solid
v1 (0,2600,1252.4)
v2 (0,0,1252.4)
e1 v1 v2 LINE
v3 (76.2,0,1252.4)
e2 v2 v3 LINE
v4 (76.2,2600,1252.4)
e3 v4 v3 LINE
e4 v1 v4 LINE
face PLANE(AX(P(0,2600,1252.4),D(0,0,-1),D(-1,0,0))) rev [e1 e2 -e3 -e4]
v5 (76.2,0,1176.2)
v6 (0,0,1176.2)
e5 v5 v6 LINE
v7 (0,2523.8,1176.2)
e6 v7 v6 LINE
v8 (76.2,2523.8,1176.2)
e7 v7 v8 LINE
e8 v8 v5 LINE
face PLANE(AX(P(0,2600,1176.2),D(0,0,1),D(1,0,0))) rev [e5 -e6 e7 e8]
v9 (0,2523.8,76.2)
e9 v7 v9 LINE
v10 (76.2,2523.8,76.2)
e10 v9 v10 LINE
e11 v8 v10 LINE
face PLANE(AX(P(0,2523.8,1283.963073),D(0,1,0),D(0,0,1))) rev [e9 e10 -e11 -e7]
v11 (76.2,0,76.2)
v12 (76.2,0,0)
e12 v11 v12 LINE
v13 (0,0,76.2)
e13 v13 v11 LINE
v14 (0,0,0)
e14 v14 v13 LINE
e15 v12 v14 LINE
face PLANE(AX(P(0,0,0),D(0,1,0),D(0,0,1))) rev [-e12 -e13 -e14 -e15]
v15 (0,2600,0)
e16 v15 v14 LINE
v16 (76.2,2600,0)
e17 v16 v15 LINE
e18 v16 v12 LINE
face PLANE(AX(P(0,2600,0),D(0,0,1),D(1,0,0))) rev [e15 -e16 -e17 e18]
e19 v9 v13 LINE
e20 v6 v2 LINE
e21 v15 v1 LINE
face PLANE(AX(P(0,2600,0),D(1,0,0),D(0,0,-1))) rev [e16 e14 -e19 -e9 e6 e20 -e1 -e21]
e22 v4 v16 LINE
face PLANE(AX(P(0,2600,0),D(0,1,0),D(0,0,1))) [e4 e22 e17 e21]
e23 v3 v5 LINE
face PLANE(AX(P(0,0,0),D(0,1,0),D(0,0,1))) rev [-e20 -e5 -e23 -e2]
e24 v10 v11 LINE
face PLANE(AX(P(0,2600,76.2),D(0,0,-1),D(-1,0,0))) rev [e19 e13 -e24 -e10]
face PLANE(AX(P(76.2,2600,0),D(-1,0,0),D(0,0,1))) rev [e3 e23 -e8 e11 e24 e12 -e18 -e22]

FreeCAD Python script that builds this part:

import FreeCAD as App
import Part
import Sketcher
Q = App.Units.Quantity


def add_polygon(sketch, points):
    """Adds a closed chain of lines whose ends are joined by coincident constraints."""
    first, n = sketch.GeometryCount, len(points)
    for a, b in zip(points, points[1:] + points[:1]):
        sketch.addGeometry(Part.LineSegment(App.Vector(*a, 0), App.Vector(*b, 0)), False)
    for i in range(n):
        sketch.addConstraint(Sketcher.Constraint("Coincident", first + i, 2, first + (i + 1) % n, 1))

doc = App.newDocument("Part")
body = doc.addObject("PartDesign::Body", "Body")

# Sketch on XZ plane
sketch1 = body.newObject("Sketcher::SketchObject", "Sketch")
sketch1.AttachmentSupport = (doc.getObject("XZ_Plane"), [""])
sketch1.MapMode = "FlatFace"
add_polygon(sketch1, [(0, 0), (0, 76), (76, 76), (76, 0)])  # lines 0-3
sketch1.addConstraint(Sketcher.Constraint("Vertical", 0))
sketch1.addConstraint(Sketcher.Constraint("Horizontal", 1))
sketch1.addConstraint(Sketcher.Constraint("Vertical", 2))
sketch1.addConstraint(Sketcher.Constraint("Horizontal", 3))
sketch1.addConstraint(Sketcher.Constraint("Coincident", 3, 2, -1, 1))
sketch1.addConstraint(Sketcher.Constraint("Equal", 3, 0))
sketch1.addConstraint(Sketcher.Constraint("DistanceX", 1, 1, 1, 2, Q("76.2 mm")))
pad1 = body.newObject("PartDesign::Pad", "Pad")
pad1.Profile = sketch1
pad1.Length = 2600
pad1.Reversed = True
body2 = doc.addObject("PartDesign::Body", "Body001")

# Sketch on XZ plane
sketch2 = body2.newObject("Sketcher::SketchObject", "Sketch001")
sketch2.AttachmentSupport = (doc.getObject("XZ_Plane001"), [""])
sketch2.MapMode = "FlatFace"
add_polygon(sketch2, [(1481, 0), (1481, 76), (1557, 76), (1557, 0)])  # lines 0-3
sketch2.addConstraint(Sketcher.Constraint("Vertical", 0))
sketch2.addConstraint(Sketcher.Constraint("Horizontal", 1))
sketch2.addConstraint(Sketcher.Constraint("Vertical", 2))
sketch2.addConstraint(Sketcher.Constraint("Horizontal", 3))
sketch2.addConstraint(Sketcher.Constraint("PointOnObject", 2, 2, -1))
sketch2.addConstraint(Sketcher.Constraint("Equal", 3, 0))
sketch2.addConstraint(Sketcher.Constraint("DistanceX", 1, 1, 1, 2, Q("76.2 mm")))
sketch2.addConstraint(Sketcher.Constraint("DistanceX", -1, 1, 0, 2, Q("1481.2 mm")))
pad2 = body2.newObject("PartDesign::Pad", "Pad001")
pad2.Profile = sketch2
pad2.Length = 2600
pad2.Reversed = True
body3 = doc.addObject("PartDesign::Body", "Body002")

# Sketch on XZ plane
sketch3 = body3.newObject("Sketcher::SketchObject", "Sketch002")
sketch3.AttachmentSupport = (doc.getObject("XZ_Plane002"), [""])
sketch3.MapMode = "FlatFace"
add_polygon(sketch3, [(2962, 0), (2962, 76), (3039, 76), (3039, 0)])  # lines 0-3
sketch3.addConstraint(Sketcher.Constraint("Vertical", 0))
sketch3.addConstraint(Sketcher.Constraint("Horizontal", 1))
sketch3.addConstraint(Sketcher.Constraint("Vertical", 2))
sketch3.addConstraint(Sketcher.Constraint("Horizontal", 3))
sketch3.addConstraint(Sketcher.Constraint("PointOnObject", 2, 2, -1))
sketch3.addConstraint(Sketcher.Constraint("Equal", 3, 0))
sketch3.addConstraint(Sketcher.Constraint("DistanceX", 1, 1, 1, 2, Q("76.2 mm")))
sketch3.addConstraint(Sketcher.Constraint("DistanceX", -1, 1, 0, 2, Q("2962.4 mm")))
pad3 = body3.newObject("PartDesign::Pad", "Pad002")
pad3.Profile = sketch3
pad3.Length = 2600
pad3.Reversed = True
body4 = doc.addObject("PartDesign::Body", "Body003")

# Sketch on XZ plane
sketch4 = body4.newObject("Sketcher::SketchObject", "Sketch003")
sketch4.AttachmentSupport = (doc.getObject("XZ_Plane003"), [""])
sketch4.MapMode = "FlatFace"
add_polygon(sketch4, [(4444, 0), (4444, 76), (4520, 76), (4520, 0)])  # lines 0-3
sketch4.addConstraint(Sketcher.Constraint("Vertical", 0))
sketch4.addConstraint(Sketcher.Constraint("Horizontal", 1))
sketch4.addConstraint(Sketcher.Constraint("Vertical", 2))
sketch4.addConstraint(Sketcher.Constraint("Horizontal", 3))
sketch4.addConstraint(Sketcher.Constraint("PointOnObject", 2, 2, -1))
sketch4.addConstraint(Sketcher.Constraint("Equal", 3, 0))
sketch4.addConstraint(Sketcher.Constraint("DistanceX", 1, 1, 1, 2, Q("76.2 mm")))
sketch4.addConstraint(Sketcher.Constraint("DistanceX", -1, 1, 0, 2, Q("4443.6 mm")))
pad4 = body4.newObject("PartDesign::Pad", "Pad003")
pad4.Profile = sketch4
pad4.Length = 2600
pad4.Reversed = True
body5 = doc.addObject("PartDesign::Body", "Body004")

# Sketch on XZ plane
sketch5 = body5.newObject("Sketcher::SketchObject", "Sketch004")
sketch5.AttachmentSupport = (doc.getObject("XZ_Plane004"), [""])
sketch5.MapMode = "FlatFace"
add_polygon(sketch5, [(5925, 0), (5925, 76), (6001, 76), (6001, 0)])  # lines 0-3
sketch5.addConstraint(Sketcher.Constraint("Vertical", 0))
sketch5.addConstraint(Sketcher.Constraint("Horizontal", 1))
sketch5.addConstraint(Sketcher.Constraint("Vertical", 2))
sketch5.addConstraint(Sketcher.Constraint("Horizontal", 3))
sketch5.addConstraint(Sketcher.Constraint("PointOnObject", 2, 2, -1))
sketch5.addConstraint(Sketcher.Constraint("Equal", 3, 0))
sketch5.addConstraint(Sketcher.Constraint("DistanceX", 1, 1, 1, 2, Q("76.2 mm")))
sketch5.addConstraint(Sketcher.Constraint("DistanceX", -1, 1, 1, 2, Q("6001 mm")))
pad5 = body5.newObject("PartDesign::Pad", "Pad004")
pad5.Profile = sketch5
pad5.Length = 2600
pad5.Reversed = True
body6 = doc.addObject("PartDesign::Body", "Body005")

# Sketch on XZ plane
sketch6 = body6.newObject("Sketcher::SketchObject", "Sketch005")
sketch6.AttachmentSupport = (doc.getObject("XZ_Plane005"), [""])
sketch6.MapMode = "FlatFace"
add_polygon(sketch6, [(5925, 1176), (5925, 1252), (6001, 1252), (6001, 1176)])  # lines 0-3
sketch6.addConstraint(Sketcher.Constraint("Vertical", 0))
sketch6.addConstraint(Sketcher.Constraint("Horizontal", 1))
sketch6.addConstraint(Sketcher.Constraint("Vertical", 2))
sketch6.addConstraint(Sketcher.Constraint("Horizontal", 3))
sketch6.addConstraint(Sketcher.Constraint("Equal", 3, 0))
sketch6.addConstraint(Sketcher.Constraint("DistanceX", 1, 1, 1, 2, Q("76.2 mm")))
sketch6.addConstraint(Sketcher.Constraint("DistanceX", -1, 1, 1, 2, Q("6001 mm")))
sketch6.addConstraint(Sketcher.Constraint("DistanceY", -1, 1, 0, 2, Q("1252.4 mm")))
pad6 = body6.newObject("PartDesign::Pad", "Pad005")
pad6.Profile = sketch6
pad6.Length = 2600
pad6.Reversed = True
body7 = doc.addObject("PartDesign::Body", "Body006")

# Sketch on XZ plane
sketch7 = body7.newObject("Sketcher::SketchObject", "Sketch006")
sketch7.AttachmentSupport = (doc.getObject("XZ_Plane006"), [""])
sketch7.MapMode = "FlatFace"
add_polygon(sketch7, [(4444, 1176), (4444, 1252), (4520, 1252), (4520, 1176)])  # lines 0-3
sketch7.addConstraint(Sketcher.Constraint("Vertical", 0))
sketch7.addConstraint(Sketcher.Constraint("Horizontal", 1))
sketch7.addConstraint(Sketcher.Constraint("Vertical", 2))
sketch7.addConstraint(Sketcher.Constraint("Horizontal", 3))
sketch7.addConstraint(Sketcher.Constraint("Equal", 3, 0))
sketch7.addConstraint(Sketcher.Constraint("DistanceX", 1, 1, 1, 2, Q("76.2 mm")))
sketch7.addConstraint(Sketcher.Constraint("DistanceX", -1, 1, 0, 2, Q("4443.6 mm")))
sketch7.addConstraint(Sketcher.Constraint("DistanceY", -1, 1, 0, 2, Q("1252.4 mm")))
pad7 = body7.newObject("PartDesign::Pad", "Pad006")
pad7.Profile = sketch7
pad7.Length = 2600
pad7.Reversed = True
body8 = doc.addObject("PartDesign::Body", "Body007")

# Sketch on XZ plane
sketch8 = body8.newObject("Sketcher::SketchObject", "Sketch007")
sketch8.AttachmentSupport = (doc.getObject("XZ_Plane007"), [""])
sketch8.MapMode = "FlatFace"
add_polygon(sketch8, [(2962, 1176), (2962, 1252), (3039, 1252), (3039, 1176)])  # lines 0-3
sketch8.addConstraint(Sketcher.Constraint("Vertical", 0))
sketch8.addConstraint(Sketcher.Constraint("Horizontal", 1))
sketch8.addConstraint(Sketcher.Constraint("Vertical", 2))
sketch8.addConstraint(Sketcher.Constraint("Horizontal", 3))
sketch8.addConstraint(Sketcher.Constraint("Equal", 3, 0))
sketch8.addConstraint(Sketcher.Constraint("DistanceX", 1, 1, 1, 2, Q("76.2 mm")))
sketch8.addConstraint(Sketcher.Constraint("DistanceX", -1, 1, 0, 2, Q("2962.4 mm")))
sketch8.addConstraint(Sketcher.Constraint("DistanceY", -1, 1, 0, 2, Q("1252.4 mm")))
pad8 = body8.newObject("PartDesign::Pad", "Pad007")
pad8.Profile = sketch8
pad8.Length = 2600
pad8.Reversed = True
body9 = doc.addObject("PartDesign::Body", "Body008")

# Sketch on XZ plane
sketch9 = body9.newObject("Sketcher::SketchObject", "Sketch008")
sketch9.AttachmentSupport = (doc.getObject("XZ_Plane008"), [""])
sketch9.MapMode = "FlatFace"
add_polygon(sketch9, [(1481, 1176), (1481, 1252), (1557, 1252), (1557, 1176)])  # lines 0-3
sketch9.addConstraint(Sketcher.Constraint("Vertical", 0))
sketch9.addConstraint(Sketcher.Constraint("Horizontal", 1))
sketch9.addConstraint(Sketcher.Constraint("Vertical", 2))
sketch9.addConstraint(Sketcher.Constraint("Horizontal", 3))
sketch9.addConstraint(Sketcher.Constraint("Equal", 3, 0))
sketch9.addConstraint(Sketcher.Constraint("DistanceX", 1, 1, 1, 2, Q("76.2 mm")))
sketch9.addConstraint(Sketcher.Constraint("DistanceX", -1, 1, 0, 2, Q("1481.2 mm")))
sketch9.addConstraint(Sketcher.Constraint("DistanceY", -1, 1, 0, 2, Q("1252.4 mm")))
pad9 = body9.newObject("PartDesign::Pad", "Pad008")
pad9.Profile = sketch9
pad9.Length = 2600
pad9.Reversed = True
body10 = doc.addObject("PartDesign::Body", "Body009")

# Sketch on XZ plane
sketch10 = body10.newObject("Sketcher::SketchObject", "Sketch009")
sketch10.AttachmentSupport = (doc.getObject("XZ_Plane009"), [""])
sketch10.MapMode = "FlatFace"
add_polygon(sketch10, [(0, 1176), (0, 1252), (76, 1252), (76, 1176)])  # lines 0-3
sketch10.addConstraint(Sketcher.Constraint("Vertical", 0))
sketch10.addConstraint(Sketcher.Constraint("Horizontal", 1))
sketch10.addConstraint(Sketcher.Constraint("Vertical", 2))
sketch10.addConstraint(Sketcher.Constraint("Horizontal", 3))
sketch10.addConstraint(Sketcher.Constraint("PointOnObject", 0, 2, -2))
sketch10.addConstraint(Sketcher.Constraint("Equal", 3, 0))
sketch10.addConstraint(Sketcher.Constraint("DistanceX", 1, 1, 1, 2, Q("76.2 mm")))
sketch10.addConstraint(Sketcher.Constraint("DistanceY", -1, 1, 0, 2, Q("1252.4 mm")))
pad10 = body10.newObject("PartDesign::Pad", "Pad009")
pad10.Profile = sketch10
pad10.Length = 2600
pad10.Reversed = True
body.AllowCompound = True
doc.recompute()

boolean = body.newObject("PartDesign::Boolean", "Boolean")
boolean.Type = "Fuse"
boolean.addObjects([body2])
doc.recompute()

boolean2 = body.newObject("PartDesign::Boolean", "Boolean001")
boolean2.Type = "Fuse"
boolean2.addObjects([body3])
doc.recompute()

boolean3 = body.newObject("PartDesign::Boolean", "Boolean002")
boolean3.Type = "Fuse"
boolean3.addObjects([body4])
doc.recompute()

boolean4 = body.newObject("PartDesign::Boolean", "Boolean003")
boolean4.Type = "Fuse"
boolean4.addObjects([body5])
doc.recompute()

boolean5 = body.newObject("PartDesign::Boolean", "Boolean004")
boolean5.Type = "Fuse"
boolean5.addObjects([body6])
doc.recompute()

boolean6 = body.newObject("PartDesign::Boolean", "Boolean005")
boolean6.Type = "Fuse"
boolean6.addObjects([body7])
doc.recompute()

boolean7 = body.newObject("PartDesign::Boolean", "Boolean006")
boolean7.Type = "Fuse"
boolean7.addObjects([body8])
doc.recompute()

boolean8 = body.newObject("PartDesign::Boolean", "Boolean007")
boolean8.Type = "Fuse"
boolean8.addObjects([body9])
doc.recompute()

boolean9 = body.newObject("PartDesign::Boolean", "Boolean008")
boolean9.Type = "Fuse"
boolean9.addObjects([body10])

# Sketch on XY plane
sketch11 = body.newObject("Sketcher::SketchObject", "Sketch010")
sketch11.AttachmentSupport = (doc.getObject("XY_Plane"), [""])
sketch11.MapMode = "FlatFace"
sketch11.AttachmentOffset = App.Placement(App.Vector(0, 0, 76.2), App.Rotation())
add_polygon(sketch11, [(0, 2600), (0, 2524), (76, 2524), (76, 2600)])  # lines 0-3
add_polygon(sketch11, [(1481, 2600), (1481, 2524), (1557, 2524), (1557, 2600)])  # lines 4-7
add_polygon(sketch11, [(2962, 2600), (2962, 2524), (3039, 2524), (3039, 2600)])  # lines 8-11
add_polygon(sketch11, [(4444, 2600), (4444, 2524), (4520, 2524), (4520, 2600)])  # lines 12-15
add_polygon(sketch11, [(5925, 2600), (5925, 2524), (6001, 2524), (6001, 2600)])  # lines 16-19
sketch11.addConstraint(Sketcher.Constraint("Vertical", 0))
sketch11.addConstraint(Sketcher.Constraint("Horizontal", 1))
sketch11.addConstraint(Sketcher.Constraint("Vertical", 2))
sketch11.addConstraint(Sketcher.Constraint("Horizontal", 3))
sketch11.addConstraint(Sketcher.Constraint("Vertical", 4))
sketch11.addConstraint(Sketcher.Constraint("Horizontal", 5))
sketch11.addConstraint(Sketcher.Constraint("Vertical", 6))
sketch11.addConstraint(Sketcher.Constraint("Horizontal", 7))
sketch11.addConstraint(Sketcher.Constraint("Vertical", 8))
sketch11.addConstraint(Sketcher.Constraint("Horizontal", 9))
sketch11.addConstraint(Sketcher.Constraint("Vertical", 10))
sketch11.addConstraint(Sketcher.Constraint("Horizontal", 11))
sketch11.addConstraint(Sketcher.Constraint("Vertical", 12))
sketch11.addConstraint(Sketcher.Constraint("Horizontal", 13))
sketch11.addConstraint(Sketcher.Constraint("Vertical", 14))
sketch11.addConstraint(Sketcher.Constraint("Horizontal", 15))
sketch11.addConstraint(Sketcher.Constraint("Vertical", 16))
sketch11.addConstraint(Sketcher.Constraint("Horizontal", 17))
sketch11.addConstraint(Sketcher.Constraint("Vertical", 18))
sketch11.addConstraint(Sketcher.Constraint("Horizontal", 19))
sketch11.addConstraint(Sketcher.Constraint("PointOnObject", 0, 2, -2))
sketch11.addConstraint(Sketcher.Constraint("Horizontal", 1, 2, 4, 2))
sketch11.addConstraint(Sketcher.Constraint("Horizontal", 3, 2, 6, 2))
sketch11.addConstraint(Sketcher.Constraint("Horizontal", 5, 2, 8, 2))
sketch11.addConstraint(Sketcher.Constraint("Horizontal", 7, 2, 10, 2))
sketch11.addConstraint(Sketcher.Constraint("Horizontal", 9, 2, 12, 2))
sketch11.addConstraint(Sketcher.Constraint("Horizontal", 11, 2, 14, 2))
sketch11.addConstraint(Sketcher.Constraint("Horizontal", 13, 2, 16, 2))
sketch11.addConstraint(Sketcher.Constraint("Horizontal", 15, 2, 18, 2))
sketch11.addConstraint(Sketcher.Constraint("Equal", 3, 5))
sketch11.addConstraint(Sketcher.Constraint("Equal", 7, 9))
sketch11.addConstraint(Sketcher.Constraint("Equal", 11, 13))
sketch11.addConstraint(Sketcher.Constraint("Equal", 15, 17))
sketch11.addConstraint(Sketcher.Constraint("Equal", 19, 0))
sketch11.addConstraint(Sketcher.Constraint("DistanceX", 1, 1, 1, 2, Q("76.2 mm")))
sketch11.addConstraint(Sketcher.Constraint("DistanceY", -1, 1, 2, 2, Q("2600 mm")))
sketch11.addConstraint(Sketcher.Constraint("DistanceX", -1, 1, 17, 2, Q("6001 mm")))
sketch11.addConstraint(Sketcher.Constraint("DistanceX", 1, 2, 4, 2, Q("1405 mm")))
sketch11.addConstraint(Sketcher.Constraint("DistanceX", 5, 2, 8, 2, Q("1405 mm")))
sketch11.addConstraint(Sketcher.Constraint("DistanceX", 9, 2, 12, 2, Q("1405 mm")))
pad11 = body.newObject("PartDesign::Pad", "Pad010")
pad11.Profile = sketch11
pad11.Length = 1100

# Sketch on YZ plane
sketch12 = body.newObject("Sketcher::SketchObject", "Sketch011")
sketch12.AttachmentSupport = (doc.getObject("YZ_Plane"), [""])
sketch12.MapMode = "FlatFace"
sketch12.AttachmentOffset = App.Placement(App.Vector(0, 0, 6001), App.Rotation())
add_polygon(sketch12, [(2600, 1252), (0, 1252), (0, 0), (2600, 0)])  # lines 0-3
sketch12.addConstraint(Sketcher.Constraint("Horizontal", 0))
sketch12.addConstraint(Sketcher.Constraint("Vertical", 1))
sketch12.addConstraint(Sketcher.Constraint("Horizontal", 2))
sketch12.addConstraint(Sketcher.Constraint("Vertical", 3))
sketch12.addConstraint(Sketcher.Constraint("Coincident", 1, 2, -1, 1))
sketch12.addConstraint(Sketcher.Constraint("DistanceX", 0, 2, 0, 1, Q("2600 mm")))
sketch12.addConstraint(Sketcher.Constraint("DistanceY", 1, 2, 1, 1, Q("1252.4 mm")))
pocket1 = body.newObject("PartDesign::Pocket", "Pocket")
pocket1.Profile = sketch12
pocket1.Length = 5924.8

doc.recompute()
